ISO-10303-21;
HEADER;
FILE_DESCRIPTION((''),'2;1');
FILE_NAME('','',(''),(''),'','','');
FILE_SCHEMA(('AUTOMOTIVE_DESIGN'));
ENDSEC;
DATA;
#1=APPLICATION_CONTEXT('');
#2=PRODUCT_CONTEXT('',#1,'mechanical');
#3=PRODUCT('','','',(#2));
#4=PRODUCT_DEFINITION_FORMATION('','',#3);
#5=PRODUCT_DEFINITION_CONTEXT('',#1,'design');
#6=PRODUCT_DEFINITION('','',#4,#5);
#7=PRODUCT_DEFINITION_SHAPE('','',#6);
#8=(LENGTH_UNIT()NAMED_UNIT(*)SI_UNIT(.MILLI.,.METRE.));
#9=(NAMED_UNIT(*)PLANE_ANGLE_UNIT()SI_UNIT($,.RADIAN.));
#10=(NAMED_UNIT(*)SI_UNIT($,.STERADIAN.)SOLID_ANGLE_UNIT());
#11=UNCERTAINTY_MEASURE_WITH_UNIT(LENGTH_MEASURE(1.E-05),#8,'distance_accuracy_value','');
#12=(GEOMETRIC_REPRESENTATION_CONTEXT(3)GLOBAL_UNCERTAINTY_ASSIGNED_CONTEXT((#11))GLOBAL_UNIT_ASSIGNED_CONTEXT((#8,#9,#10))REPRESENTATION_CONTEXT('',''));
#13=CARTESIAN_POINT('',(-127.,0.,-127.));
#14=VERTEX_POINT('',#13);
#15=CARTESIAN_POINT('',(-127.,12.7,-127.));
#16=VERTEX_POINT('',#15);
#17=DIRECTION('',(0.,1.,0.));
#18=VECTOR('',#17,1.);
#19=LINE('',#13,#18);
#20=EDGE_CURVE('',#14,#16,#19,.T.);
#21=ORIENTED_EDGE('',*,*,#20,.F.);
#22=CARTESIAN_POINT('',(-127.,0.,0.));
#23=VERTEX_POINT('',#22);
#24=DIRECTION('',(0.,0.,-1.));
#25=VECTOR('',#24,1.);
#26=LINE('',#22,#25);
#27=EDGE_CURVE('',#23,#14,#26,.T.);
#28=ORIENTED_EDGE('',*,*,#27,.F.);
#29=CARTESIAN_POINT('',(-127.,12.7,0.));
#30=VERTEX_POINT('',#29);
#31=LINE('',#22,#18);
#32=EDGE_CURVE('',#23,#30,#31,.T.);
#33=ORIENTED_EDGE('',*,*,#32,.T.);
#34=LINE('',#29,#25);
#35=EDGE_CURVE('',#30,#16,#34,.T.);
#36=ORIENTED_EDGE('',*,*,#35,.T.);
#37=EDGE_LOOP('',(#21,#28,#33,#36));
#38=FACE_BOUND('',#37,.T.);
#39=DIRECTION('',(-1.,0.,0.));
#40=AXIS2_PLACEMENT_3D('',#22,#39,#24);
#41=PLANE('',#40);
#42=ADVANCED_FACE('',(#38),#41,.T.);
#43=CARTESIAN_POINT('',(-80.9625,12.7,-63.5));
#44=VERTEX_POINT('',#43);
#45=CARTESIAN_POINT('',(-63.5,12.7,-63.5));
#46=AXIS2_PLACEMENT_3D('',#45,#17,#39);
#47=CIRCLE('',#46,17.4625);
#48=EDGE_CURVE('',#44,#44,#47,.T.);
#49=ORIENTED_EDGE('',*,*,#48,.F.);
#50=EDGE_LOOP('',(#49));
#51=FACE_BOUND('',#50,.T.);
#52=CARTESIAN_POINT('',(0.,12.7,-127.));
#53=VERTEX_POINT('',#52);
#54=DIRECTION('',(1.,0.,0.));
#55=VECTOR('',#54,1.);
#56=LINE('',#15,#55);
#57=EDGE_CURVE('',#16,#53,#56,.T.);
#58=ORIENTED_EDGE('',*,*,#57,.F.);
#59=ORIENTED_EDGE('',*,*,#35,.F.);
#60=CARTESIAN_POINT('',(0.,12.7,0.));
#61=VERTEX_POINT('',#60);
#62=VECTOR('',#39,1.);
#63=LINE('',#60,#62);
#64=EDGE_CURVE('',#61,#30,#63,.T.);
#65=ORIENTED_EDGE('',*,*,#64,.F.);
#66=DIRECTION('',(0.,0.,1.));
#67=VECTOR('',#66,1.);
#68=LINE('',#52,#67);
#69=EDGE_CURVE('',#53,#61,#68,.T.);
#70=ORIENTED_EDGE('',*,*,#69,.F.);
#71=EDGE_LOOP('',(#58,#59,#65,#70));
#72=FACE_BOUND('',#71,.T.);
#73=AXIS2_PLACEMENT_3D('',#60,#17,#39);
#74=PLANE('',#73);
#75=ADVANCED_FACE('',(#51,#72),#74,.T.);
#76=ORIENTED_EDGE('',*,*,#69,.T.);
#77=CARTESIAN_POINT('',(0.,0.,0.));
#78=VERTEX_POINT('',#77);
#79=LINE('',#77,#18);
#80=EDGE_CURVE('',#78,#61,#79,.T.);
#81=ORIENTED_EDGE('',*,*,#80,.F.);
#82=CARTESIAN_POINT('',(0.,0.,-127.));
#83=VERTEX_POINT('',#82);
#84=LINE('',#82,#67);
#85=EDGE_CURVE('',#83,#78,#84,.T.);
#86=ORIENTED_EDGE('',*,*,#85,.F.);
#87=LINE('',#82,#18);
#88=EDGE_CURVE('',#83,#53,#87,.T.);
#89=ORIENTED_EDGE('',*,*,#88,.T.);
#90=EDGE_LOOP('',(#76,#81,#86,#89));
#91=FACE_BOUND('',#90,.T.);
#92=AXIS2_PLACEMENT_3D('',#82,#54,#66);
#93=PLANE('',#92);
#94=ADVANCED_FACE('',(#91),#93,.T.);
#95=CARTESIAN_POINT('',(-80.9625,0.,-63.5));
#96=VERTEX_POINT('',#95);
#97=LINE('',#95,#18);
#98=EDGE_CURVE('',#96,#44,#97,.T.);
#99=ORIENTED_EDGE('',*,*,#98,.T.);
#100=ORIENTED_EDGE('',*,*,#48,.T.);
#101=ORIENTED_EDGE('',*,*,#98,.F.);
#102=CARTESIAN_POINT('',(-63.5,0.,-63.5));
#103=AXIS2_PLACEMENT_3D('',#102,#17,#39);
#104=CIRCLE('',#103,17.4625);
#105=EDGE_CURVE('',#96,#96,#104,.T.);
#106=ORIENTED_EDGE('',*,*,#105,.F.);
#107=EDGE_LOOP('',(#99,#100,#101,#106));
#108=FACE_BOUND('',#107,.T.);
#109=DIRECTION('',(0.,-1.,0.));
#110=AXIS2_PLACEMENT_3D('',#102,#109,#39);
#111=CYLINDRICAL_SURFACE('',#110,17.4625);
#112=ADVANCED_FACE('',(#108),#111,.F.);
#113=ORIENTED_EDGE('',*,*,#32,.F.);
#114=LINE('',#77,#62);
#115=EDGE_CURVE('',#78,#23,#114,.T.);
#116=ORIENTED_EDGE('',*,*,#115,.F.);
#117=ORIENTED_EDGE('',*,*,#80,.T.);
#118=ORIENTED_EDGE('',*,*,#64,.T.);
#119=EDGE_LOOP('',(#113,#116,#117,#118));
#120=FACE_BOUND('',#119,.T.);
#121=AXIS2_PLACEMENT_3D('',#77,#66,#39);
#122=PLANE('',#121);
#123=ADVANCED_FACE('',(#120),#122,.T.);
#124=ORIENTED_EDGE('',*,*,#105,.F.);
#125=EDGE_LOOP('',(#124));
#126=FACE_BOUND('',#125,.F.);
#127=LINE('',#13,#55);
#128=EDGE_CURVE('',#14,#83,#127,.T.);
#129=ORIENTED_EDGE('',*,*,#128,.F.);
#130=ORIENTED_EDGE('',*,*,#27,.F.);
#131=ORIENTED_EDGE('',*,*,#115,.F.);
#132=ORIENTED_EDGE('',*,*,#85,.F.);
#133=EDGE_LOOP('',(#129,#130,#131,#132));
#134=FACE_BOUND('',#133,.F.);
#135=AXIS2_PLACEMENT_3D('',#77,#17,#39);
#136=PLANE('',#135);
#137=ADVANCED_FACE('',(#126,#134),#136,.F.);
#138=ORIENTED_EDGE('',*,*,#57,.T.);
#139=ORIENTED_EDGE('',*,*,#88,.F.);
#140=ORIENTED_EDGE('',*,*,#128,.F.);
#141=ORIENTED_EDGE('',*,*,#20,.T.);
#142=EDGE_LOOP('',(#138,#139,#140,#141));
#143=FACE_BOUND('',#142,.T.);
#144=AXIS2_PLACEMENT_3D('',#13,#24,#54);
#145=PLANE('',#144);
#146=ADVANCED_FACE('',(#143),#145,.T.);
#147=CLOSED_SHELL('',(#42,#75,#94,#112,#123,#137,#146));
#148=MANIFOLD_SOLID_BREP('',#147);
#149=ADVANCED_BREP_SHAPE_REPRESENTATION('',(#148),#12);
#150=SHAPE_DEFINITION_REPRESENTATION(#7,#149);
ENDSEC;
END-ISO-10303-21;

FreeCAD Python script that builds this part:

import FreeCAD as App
import Part
import Sketcher

V = App.Vector
Q = App.Units.Quantity


def add_polygon(sketch, points):
    """Adds a closed chain of lines whose ends are joined by coincident constraints."""
    first, n = sketch.GeometryCount, len(points)
    for a, b in zip(points, points[1:] + points[:1]):
        sketch.addGeometry(Part.LineSegment(App.Vector(*a, 0), App.Vector(*b, 0)), False)
    for i in range(n):
        sketch.addConstraint(Sketcher.Constraint("Coincident", first + i, 2, first + (i + 1) % n, 1))

doc = App.newDocument("Part")
body = doc.addObject("PartDesign::Body", "Body")

# Sketch on XZ plane
sketch1 = body.newObject("Sketcher::SketchObject", "Sketch")
sketch1.AttachmentSupport = (doc.getObject("XZ_Plane"), [""])
sketch1.MapMode = "FlatFace"
add_polygon(sketch1, [(-127, 0), (0, 0), (0, -127), (-127, -127)])  # lines 0-3
sketch1.addGeometry(Part.Circle(V(-64, -64, 0), V(0, 0, 1), 17), False)  # 4
sketch1.addConstraint([
    Sketcher.Constraint("Horizontal", 0),
    Sketcher.Constraint("Vertical", 1),
    Sketcher.Constraint("Horizontal", 2),
    Sketcher.Constraint("Vertical", 3),
    Sketcher.Constraint("Coincident", 0, 2, -1, 1),
    Sketcher.Constraint("Equal", 2, 1),
    Sketcher.Constraint("DistanceX", 0, 1, 0, 2, Q("5 in")),
    Sketcher.Constraint("Diameter", 4, Q("1.375 in")),
    Sketcher.Constraint("DistanceX", 4, 3, -1, 1, Q("2.5 in")),
    Sketcher.Constraint("DistanceY", 4, 3, -1, 1, Q("2.5 in")),
])
pad1 = body.newObject("PartDesign::Pad", "Pad")
pad1.Profile = sketch1
pad1.Length = Q("0.5 in")
pad1.Reversed = True

doc.recompute()
